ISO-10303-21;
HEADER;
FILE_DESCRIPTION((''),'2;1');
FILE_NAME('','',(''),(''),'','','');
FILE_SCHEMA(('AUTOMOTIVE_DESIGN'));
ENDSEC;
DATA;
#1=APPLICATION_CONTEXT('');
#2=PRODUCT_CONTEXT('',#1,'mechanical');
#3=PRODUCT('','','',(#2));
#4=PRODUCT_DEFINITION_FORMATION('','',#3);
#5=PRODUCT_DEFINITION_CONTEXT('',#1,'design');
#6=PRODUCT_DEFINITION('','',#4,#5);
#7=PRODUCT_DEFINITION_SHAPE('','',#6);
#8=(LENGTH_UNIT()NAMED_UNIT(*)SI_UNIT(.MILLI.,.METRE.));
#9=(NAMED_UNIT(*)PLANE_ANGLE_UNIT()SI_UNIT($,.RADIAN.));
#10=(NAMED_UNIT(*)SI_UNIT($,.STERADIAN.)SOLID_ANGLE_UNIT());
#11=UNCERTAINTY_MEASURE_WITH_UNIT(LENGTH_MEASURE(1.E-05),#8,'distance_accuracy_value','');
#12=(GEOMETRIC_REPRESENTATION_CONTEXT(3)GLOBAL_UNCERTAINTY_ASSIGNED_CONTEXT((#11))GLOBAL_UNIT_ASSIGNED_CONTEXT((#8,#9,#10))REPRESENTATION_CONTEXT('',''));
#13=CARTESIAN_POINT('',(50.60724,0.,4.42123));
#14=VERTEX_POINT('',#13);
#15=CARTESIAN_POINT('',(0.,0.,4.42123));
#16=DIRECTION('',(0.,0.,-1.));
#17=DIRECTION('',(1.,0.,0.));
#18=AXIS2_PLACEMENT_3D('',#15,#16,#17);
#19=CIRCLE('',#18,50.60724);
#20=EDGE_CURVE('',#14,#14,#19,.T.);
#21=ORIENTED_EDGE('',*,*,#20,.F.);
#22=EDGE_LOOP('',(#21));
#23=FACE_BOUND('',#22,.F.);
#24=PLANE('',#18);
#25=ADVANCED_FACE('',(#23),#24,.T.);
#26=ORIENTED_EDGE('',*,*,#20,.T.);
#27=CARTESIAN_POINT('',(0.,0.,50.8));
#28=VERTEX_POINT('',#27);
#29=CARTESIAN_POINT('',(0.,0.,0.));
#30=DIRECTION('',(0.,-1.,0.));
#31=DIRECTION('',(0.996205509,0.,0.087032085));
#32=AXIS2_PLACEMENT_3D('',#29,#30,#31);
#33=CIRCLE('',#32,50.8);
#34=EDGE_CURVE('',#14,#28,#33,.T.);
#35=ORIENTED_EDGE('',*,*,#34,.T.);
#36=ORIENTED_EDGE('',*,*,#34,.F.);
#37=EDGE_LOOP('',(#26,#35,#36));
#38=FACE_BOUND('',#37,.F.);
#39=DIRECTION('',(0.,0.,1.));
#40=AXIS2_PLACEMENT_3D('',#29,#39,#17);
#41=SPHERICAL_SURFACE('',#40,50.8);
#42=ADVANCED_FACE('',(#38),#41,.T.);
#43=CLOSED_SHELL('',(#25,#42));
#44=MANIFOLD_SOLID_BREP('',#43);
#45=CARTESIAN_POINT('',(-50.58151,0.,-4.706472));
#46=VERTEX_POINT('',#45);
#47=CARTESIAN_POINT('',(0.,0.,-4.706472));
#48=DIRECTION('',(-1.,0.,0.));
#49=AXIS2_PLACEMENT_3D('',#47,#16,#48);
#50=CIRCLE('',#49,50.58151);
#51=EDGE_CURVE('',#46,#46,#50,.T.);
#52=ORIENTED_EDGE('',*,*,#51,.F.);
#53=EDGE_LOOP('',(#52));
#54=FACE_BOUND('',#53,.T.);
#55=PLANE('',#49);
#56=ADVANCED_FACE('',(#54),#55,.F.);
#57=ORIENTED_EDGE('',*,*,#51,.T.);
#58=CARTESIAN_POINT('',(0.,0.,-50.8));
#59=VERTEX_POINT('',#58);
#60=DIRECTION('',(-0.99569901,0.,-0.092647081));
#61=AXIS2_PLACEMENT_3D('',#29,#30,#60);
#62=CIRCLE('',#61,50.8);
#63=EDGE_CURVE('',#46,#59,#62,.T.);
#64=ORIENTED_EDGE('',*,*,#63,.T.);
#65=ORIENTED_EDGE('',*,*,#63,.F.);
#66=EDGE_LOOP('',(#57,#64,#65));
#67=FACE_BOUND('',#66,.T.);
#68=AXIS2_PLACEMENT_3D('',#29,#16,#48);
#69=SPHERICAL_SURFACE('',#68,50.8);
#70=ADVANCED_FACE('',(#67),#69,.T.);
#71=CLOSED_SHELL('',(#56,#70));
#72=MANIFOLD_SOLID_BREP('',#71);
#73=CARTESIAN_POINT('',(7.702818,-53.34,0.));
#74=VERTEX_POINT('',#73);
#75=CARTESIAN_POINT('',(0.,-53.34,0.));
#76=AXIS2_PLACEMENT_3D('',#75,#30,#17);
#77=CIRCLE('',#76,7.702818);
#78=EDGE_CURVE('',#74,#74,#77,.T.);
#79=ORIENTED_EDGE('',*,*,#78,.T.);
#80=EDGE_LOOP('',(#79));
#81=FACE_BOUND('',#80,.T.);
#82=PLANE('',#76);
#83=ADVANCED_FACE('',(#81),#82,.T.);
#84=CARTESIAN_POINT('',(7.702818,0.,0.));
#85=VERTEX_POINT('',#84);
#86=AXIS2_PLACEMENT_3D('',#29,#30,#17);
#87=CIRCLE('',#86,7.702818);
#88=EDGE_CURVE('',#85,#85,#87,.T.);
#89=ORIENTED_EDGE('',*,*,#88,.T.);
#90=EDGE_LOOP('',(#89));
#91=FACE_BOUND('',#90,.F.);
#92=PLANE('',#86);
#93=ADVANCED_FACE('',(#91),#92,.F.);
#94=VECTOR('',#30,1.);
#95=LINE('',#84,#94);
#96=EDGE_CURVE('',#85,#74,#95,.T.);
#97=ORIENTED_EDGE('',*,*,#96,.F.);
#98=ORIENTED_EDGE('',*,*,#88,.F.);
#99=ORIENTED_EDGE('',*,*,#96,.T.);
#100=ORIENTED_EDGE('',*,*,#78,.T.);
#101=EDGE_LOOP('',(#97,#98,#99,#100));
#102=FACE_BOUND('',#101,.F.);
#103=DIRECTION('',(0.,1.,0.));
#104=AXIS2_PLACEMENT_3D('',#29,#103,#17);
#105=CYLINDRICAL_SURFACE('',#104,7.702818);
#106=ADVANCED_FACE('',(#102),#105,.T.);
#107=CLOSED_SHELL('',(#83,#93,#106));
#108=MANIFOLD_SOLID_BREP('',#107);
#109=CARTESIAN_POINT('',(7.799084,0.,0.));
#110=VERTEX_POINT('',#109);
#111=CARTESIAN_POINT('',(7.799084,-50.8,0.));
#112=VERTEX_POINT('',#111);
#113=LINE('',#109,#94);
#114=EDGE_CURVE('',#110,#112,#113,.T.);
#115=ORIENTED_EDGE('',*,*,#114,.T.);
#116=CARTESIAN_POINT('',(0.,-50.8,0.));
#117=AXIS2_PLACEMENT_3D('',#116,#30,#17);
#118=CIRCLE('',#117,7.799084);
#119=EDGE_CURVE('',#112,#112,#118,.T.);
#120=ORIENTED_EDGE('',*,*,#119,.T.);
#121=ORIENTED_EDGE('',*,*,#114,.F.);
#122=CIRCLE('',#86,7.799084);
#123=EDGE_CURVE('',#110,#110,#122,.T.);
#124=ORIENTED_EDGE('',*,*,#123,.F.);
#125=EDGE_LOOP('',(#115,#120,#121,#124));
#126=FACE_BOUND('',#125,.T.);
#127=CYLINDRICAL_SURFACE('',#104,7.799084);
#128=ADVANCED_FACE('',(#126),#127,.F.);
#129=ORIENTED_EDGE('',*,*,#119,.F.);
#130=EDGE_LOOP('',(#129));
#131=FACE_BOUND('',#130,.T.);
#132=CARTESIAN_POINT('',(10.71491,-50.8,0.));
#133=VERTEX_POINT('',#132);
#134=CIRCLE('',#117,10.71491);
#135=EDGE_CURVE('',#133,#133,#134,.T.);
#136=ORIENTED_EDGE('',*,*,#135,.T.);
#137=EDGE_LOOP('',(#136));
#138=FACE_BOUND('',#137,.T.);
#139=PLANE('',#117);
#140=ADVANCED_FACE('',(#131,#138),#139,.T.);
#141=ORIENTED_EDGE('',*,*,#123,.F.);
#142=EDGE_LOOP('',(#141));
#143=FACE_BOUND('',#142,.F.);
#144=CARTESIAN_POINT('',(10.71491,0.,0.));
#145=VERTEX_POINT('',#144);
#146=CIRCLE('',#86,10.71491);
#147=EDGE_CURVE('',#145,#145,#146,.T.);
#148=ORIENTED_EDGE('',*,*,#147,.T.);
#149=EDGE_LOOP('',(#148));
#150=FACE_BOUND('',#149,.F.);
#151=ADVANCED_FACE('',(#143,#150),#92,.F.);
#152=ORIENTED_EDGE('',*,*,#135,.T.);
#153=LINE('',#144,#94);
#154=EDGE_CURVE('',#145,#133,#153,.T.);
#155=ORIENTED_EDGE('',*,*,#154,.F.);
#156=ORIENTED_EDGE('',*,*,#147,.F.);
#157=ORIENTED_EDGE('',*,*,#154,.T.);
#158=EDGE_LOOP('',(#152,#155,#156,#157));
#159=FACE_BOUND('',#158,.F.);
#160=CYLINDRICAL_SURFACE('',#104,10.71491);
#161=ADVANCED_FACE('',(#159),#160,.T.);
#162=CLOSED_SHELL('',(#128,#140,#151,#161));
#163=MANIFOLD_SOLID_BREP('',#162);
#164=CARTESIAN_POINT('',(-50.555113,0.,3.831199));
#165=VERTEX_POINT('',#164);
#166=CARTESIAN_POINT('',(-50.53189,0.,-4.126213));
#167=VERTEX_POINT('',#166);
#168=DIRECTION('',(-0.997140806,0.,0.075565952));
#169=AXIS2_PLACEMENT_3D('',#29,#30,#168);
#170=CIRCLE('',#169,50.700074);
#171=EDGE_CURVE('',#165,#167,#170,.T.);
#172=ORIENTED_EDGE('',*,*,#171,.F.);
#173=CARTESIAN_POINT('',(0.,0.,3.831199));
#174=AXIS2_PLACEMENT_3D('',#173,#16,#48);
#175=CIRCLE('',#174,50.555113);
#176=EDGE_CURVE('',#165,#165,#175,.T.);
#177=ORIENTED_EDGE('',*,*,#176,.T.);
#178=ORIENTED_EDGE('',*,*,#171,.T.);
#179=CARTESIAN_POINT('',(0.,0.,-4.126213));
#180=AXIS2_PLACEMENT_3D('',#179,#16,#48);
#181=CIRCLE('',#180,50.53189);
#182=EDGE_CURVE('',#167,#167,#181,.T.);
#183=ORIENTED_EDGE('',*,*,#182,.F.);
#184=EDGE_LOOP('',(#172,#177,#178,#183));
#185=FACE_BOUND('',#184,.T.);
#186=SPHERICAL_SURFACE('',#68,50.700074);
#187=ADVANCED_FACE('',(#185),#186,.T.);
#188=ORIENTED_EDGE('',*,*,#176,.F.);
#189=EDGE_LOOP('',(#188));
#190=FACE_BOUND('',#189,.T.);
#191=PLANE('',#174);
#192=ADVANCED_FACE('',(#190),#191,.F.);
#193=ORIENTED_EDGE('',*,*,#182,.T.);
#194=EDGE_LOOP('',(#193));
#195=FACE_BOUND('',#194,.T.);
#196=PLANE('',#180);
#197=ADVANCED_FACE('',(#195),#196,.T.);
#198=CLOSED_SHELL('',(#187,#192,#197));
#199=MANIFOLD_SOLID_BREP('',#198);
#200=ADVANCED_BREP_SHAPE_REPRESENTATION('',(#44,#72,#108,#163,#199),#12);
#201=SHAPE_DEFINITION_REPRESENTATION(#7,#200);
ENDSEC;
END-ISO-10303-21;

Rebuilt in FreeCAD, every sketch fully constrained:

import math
import FreeCAD as App
import Part
import Sketcher
from FreeCAD import Vector
Q = App.Units.Quantity

doc = App.newDocument("Part")
body = doc.addObject("PartDesign::Body", "Body")

sketch1 = body.newObject("Sketcher::SketchObject", "Sketch")
sketch1.AttachmentSupport = (doc.getObject("XZ_Plane"), [""])
sketch1.MapMode = "FlatFace"
sketch1.addGeometry([
    Part.LineSegment(Vector(0, 4, 0), Vector(51, 4, 0)),
    Part.ArcOfCircle(Part.Circle(Vector(0, 0, 0), Vector(0, 0, 1), 51), math.radians(5), math.radians(90)),
    Part.LineSegment(Vector(0, 51, 0), Vector(0, 4, 0)),
], False)
sketch1.addConstraint([
    Sketcher.Constraint("Coincident", 0, 2, 1, 1),
    Sketcher.Constraint("Coincident", 1, 2, 2, 1),
    Sketcher.Constraint("Coincident", 2, 2, 0, 1),
    Sketcher.Constraint("Horizontal", 0),
    Sketcher.Constraint("Vertical", 2),
    Sketcher.Constraint("Coincident", 1, 3, -1, 1),
    Sketcher.Constraint("PointOnObject", 1, 2, -2),
    Sketcher.Constraint("Radius", 1, Q("2 in")),
    Sketcher.Constraint("DistanceX", 0, 1, 0, 2, Q("50.60724 mm")),
])
revolution = body.newObject("PartDesign::Revolution", "Revolution")
revolution.Profile = sketch1
revolution.ReferenceAxis = (sketch1, ["V_Axis"])
revolution.Angle = 360
body2 = doc.addObject("PartDesign::Body", "Body001")

sketch2 = body2.newObject("Sketcher::SketchObject", "Sketch001")
sketch2.AttachmentSupport = (doc.getObject("XZ_Plane001"), [""])
sketch2.MapMode = "FlatFace"
sketch2.addGeometry([
    Part.ArcOfCircle(Part.Circle(Vector(0, 0, 0), Vector(0, 0, 1), 51), math.radians(-175), math.radians(-90)),
    Part.LineSegment(Vector(0, -51, 0), Vector(0, -5, 0)),
    Part.LineSegment(Vector(0, -5, 0), Vector(-51, -5, 0)),
], False)
sketch2.addConstraint([
    Sketcher.Constraint("Coincident", 0, 2, 1, 1),
    Sketcher.Constraint("Coincident", 1, 2, 2, 1),
    Sketcher.Constraint("Coincident", 2, 2, 0, 1),
    Sketcher.Constraint("Vertical", 1),
    Sketcher.Constraint("Horizontal", 2),
    Sketcher.Constraint("Coincident", 0, 3, -1, 1),
    Sketcher.Constraint("PointOnObject", 0, 2, -2),
    Sketcher.Constraint("Radius", 0, Q("2 in")),
    Sketcher.Constraint("DistanceX", 2, 2, 2, 1, Q("50.58151 mm")),
])
revolution2 = body2.newObject("PartDesign::Revolution", "Revolution001")
revolution2.Profile = sketch2
revolution2.ReferenceAxis = (sketch2, ["V_Axis"])
revolution2.Angle = 360
body3 = doc.addObject("PartDesign::Body", "Body002")

sketch3 = body3.newObject("Sketcher::SketchObject", "Sketch002")
sketch3.AttachmentSupport = (doc.getObject("XZ_Plane002"), [""])
sketch3.MapMode = "FlatFace"
sketch3.addGeometry([
    Part.LineSegment(Vector(0, 4, 0), Vector(-51, 4, 0)),
    Part.ArcOfCircle(Part.Circle(Vector(0, 0, 0), Vector(0, 0, 1), 51), math.radians(175.67), math.radians(184.67)),
    Part.LineSegment(Vector(-51, -4, 0), Vector(0, -4, 0)),
    Part.LineSegment(Vector(0, -4, 0), Vector(0, 4, 0)),
], False)
sketch3.addConstraint([
    Sketcher.Constraint("Coincident", 0, 2, 1, 1),
    Sketcher.Constraint("Coincident", 1, 2, 2, 1),
    Sketcher.Constraint("Coincident", 2, 2, 3, 1),
    Sketcher.Constraint("Coincident", 3, 2, 0, 1),
    Sketcher.Constraint("Horizontal", 0),
    Sketcher.Constraint("Horizontal", 2),
    Sketcher.Constraint("Vertical", 3),
    Sketcher.Constraint("Coincident", 1, 3, -1, 1),
    Sketcher.Constraint("PointOnObject", 2, 2, -2),
    Sketcher.Constraint("Radius", 1, Q("50.700074 mm")),
    Sketcher.Constraint("DistanceX", 2, 1, 2, 2, Q("50.53189 mm")),
    Sketcher.Constraint("DistanceY", -1, 1, 0, 2, Q("3.831199 mm")),
])
revolution3 = body3.newObject("PartDesign::Revolution", "Revolution002")
revolution3.Profile = sketch3
revolution3.ReferenceAxis = (sketch3, ["V_Axis"])
revolution3.Angle = 360
body4 = doc.addObject("PartDesign::Body", "Body003")

sketch4 = body4.newObject("Sketcher::SketchObject", "Sketch003")
sketch4.AttachmentSupport = (doc.getObject("XZ_Plane003"), [""])
sketch4.MapMode = "FlatFace"
sketch4.addGeometry([
    Part.Circle(Vector(0, 0, 0), Vector(0, 0, 1), 11),
    Part.Circle(Vector(0, 0, 0), Vector(0, 0, 1), 8),
], False)
sketch4.addConstraint([
    Sketcher.Constraint("Coincident", 0, 3, -1, 1),
    Sketcher.Constraint("Coincident", 1, 3, -1, 1),
    Sketcher.Constraint("Diameter", 0, Q("21.42982 mm")),
    Sketcher.Constraint("Diameter", 1, Q("15.598167 mm")),
])
pad1 = body4.newObject("PartDesign::Pad", "Pad")
pad1.Profile = sketch4
pad1.Length = Q("2 in")
body5 = doc.addObject("PartDesign::Body", "Body004")

sketch5 = body5.newObject("Sketcher::SketchObject", "Sketch004")
sketch5.AttachmentSupport = (doc.getObject("XZ_Plane004"), [""])
sketch5.MapMode = "FlatFace"
sketch5.addGeometry(Part.Circle(Vector(0, 0, 0), Vector(0, 0, 1), 8), False)
sketch5.addConstraint([
    Sketcher.Constraint("Coincident", 0, 3, -1, 1),
    Sketcher.Constraint("Diameter", 0, Q("15.405636 mm")),
])
pad2 = body5.newObject("PartDesign::Pad", "Pad001")
pad2.Profile = sketch5
pad2.Length = Q("2.1 in")

doc.recompute()
